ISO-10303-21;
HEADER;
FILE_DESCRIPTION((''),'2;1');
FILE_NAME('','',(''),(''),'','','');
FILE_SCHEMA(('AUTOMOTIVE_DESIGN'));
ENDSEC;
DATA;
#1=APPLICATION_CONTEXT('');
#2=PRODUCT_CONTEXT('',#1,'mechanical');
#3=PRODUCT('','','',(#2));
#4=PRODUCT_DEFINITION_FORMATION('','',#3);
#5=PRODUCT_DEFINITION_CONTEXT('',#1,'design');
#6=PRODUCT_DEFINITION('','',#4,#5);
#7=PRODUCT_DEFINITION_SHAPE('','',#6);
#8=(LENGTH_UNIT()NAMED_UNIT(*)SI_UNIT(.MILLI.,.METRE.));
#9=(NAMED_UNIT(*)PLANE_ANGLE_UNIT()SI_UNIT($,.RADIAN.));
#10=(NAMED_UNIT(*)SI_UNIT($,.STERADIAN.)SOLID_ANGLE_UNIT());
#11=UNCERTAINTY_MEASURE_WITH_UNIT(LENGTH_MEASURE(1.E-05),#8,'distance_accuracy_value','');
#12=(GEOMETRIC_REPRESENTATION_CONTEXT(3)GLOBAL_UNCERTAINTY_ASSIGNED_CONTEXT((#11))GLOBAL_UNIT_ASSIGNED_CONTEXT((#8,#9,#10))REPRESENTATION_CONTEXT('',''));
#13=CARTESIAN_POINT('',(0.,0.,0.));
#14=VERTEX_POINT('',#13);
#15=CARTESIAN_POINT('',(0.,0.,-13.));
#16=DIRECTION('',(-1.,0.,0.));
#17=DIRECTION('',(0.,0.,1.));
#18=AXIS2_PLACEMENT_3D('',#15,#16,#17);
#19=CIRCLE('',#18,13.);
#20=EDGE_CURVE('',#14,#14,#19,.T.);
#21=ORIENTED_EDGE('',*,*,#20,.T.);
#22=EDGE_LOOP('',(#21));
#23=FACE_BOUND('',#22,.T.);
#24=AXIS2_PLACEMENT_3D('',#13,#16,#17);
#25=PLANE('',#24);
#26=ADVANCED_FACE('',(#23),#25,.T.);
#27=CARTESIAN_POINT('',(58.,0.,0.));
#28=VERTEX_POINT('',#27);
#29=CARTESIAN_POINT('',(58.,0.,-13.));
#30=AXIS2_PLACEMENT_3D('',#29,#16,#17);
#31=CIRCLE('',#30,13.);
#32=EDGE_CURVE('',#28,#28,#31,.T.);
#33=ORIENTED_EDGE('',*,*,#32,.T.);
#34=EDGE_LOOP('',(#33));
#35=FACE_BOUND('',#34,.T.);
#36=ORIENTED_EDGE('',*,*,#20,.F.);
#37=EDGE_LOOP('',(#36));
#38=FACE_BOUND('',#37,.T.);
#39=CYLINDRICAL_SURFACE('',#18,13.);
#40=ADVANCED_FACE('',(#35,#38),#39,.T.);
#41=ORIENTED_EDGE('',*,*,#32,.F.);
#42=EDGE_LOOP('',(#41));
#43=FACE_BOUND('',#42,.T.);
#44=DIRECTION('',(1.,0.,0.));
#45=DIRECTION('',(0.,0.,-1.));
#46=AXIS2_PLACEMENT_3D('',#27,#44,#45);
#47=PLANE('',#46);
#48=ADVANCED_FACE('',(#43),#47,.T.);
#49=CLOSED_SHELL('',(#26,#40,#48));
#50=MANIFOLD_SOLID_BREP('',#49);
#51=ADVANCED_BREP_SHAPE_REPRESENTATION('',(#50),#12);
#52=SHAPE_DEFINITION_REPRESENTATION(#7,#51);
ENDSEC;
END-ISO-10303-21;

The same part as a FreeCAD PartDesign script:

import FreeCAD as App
import Part
import Sketcher

V = App.Vector
Q = App.Units.Quantity

doc = App.newDocument("Part")
body = doc.addObject("PartDesign::Body", "Body")

# Sketch on XZ plane
sketch1 = doc.addObject("Sketcher::SketchObject", "Sketch")
body.addObject(sketch1)
sketch1.AttachmentSupport = (doc.XZ_Plane, [""])
sketch1.MapMode = "FlatFace"
sketch1.addGeometry(Part.LineSegment(V(0, -13, 0), V(0, 0, 0)), False)
sketch1.addGeometry(Part.LineSegment(V(0, 0, 0), V(58, 0, 0)), False)
sketch1.addGeometry(Part.LineSegment(V(58, 0, 0), V(58, -13, 0)), False)
sketch1.addGeometry(Part.LineSegment(V(58, -13, 0), V(0, -13, 0)), False)
sketch1.addGeometry(Part.LineSegment(V(0, -13, 0), V(58, -13, 0)), True)  # axis
sketch1.addConstraint(Sketcher.Constraint("Coincident", 0, 2, 1, 1))
sketch1.addConstraint(Sketcher.Constraint("Coincident", 1, 2, 2, 1))
sketch1.addConstraint(Sketcher.Constraint("Coincident", 2, 2, 3, 1))
sketch1.addConstraint(Sketcher.Constraint("Coincident", 3, 2, 0, 1))
sketch1.addConstraint(Sketcher.Constraint("Vertical", 0))
sketch1.addConstraint(Sketcher.Constraint("Horizontal", 1))
sketch1.addConstraint(Sketcher.Constraint("Vertical", 2))
sketch1.addConstraint(Sketcher.Constraint("Horizontal", 3))
sketch1.addConstraint(Sketcher.Constraint("Horizontal", 4))
sketch1.addConstraint(Sketcher.Constraint("Coincident", 0, 2, -1, 1))
sketch1.addConstraint(Sketcher.Constraint("Coincident", 4, 1, 3, 2))
sketch1.addConstraint(Sketcher.Constraint("Vertical", 1, 2, 4, 2))
sketch1.addConstraint(Sketcher.Constraint("DistanceX", 1, 1, 1, 2, Q("58 mm")))
sketch1.addConstraint(Sketcher.Constraint("DistanceY", 0, 1, 0, 2, Q("13 mm")))
revolution = doc.addObject("PartDesign::Revolution", "Revolution")
body.addObject(revolution)
revolution.Profile = sketch1
revolution.ReferenceAxis = (sketch1, ["Axis0"])
revolution.Angle = 360

doc.recompute()
